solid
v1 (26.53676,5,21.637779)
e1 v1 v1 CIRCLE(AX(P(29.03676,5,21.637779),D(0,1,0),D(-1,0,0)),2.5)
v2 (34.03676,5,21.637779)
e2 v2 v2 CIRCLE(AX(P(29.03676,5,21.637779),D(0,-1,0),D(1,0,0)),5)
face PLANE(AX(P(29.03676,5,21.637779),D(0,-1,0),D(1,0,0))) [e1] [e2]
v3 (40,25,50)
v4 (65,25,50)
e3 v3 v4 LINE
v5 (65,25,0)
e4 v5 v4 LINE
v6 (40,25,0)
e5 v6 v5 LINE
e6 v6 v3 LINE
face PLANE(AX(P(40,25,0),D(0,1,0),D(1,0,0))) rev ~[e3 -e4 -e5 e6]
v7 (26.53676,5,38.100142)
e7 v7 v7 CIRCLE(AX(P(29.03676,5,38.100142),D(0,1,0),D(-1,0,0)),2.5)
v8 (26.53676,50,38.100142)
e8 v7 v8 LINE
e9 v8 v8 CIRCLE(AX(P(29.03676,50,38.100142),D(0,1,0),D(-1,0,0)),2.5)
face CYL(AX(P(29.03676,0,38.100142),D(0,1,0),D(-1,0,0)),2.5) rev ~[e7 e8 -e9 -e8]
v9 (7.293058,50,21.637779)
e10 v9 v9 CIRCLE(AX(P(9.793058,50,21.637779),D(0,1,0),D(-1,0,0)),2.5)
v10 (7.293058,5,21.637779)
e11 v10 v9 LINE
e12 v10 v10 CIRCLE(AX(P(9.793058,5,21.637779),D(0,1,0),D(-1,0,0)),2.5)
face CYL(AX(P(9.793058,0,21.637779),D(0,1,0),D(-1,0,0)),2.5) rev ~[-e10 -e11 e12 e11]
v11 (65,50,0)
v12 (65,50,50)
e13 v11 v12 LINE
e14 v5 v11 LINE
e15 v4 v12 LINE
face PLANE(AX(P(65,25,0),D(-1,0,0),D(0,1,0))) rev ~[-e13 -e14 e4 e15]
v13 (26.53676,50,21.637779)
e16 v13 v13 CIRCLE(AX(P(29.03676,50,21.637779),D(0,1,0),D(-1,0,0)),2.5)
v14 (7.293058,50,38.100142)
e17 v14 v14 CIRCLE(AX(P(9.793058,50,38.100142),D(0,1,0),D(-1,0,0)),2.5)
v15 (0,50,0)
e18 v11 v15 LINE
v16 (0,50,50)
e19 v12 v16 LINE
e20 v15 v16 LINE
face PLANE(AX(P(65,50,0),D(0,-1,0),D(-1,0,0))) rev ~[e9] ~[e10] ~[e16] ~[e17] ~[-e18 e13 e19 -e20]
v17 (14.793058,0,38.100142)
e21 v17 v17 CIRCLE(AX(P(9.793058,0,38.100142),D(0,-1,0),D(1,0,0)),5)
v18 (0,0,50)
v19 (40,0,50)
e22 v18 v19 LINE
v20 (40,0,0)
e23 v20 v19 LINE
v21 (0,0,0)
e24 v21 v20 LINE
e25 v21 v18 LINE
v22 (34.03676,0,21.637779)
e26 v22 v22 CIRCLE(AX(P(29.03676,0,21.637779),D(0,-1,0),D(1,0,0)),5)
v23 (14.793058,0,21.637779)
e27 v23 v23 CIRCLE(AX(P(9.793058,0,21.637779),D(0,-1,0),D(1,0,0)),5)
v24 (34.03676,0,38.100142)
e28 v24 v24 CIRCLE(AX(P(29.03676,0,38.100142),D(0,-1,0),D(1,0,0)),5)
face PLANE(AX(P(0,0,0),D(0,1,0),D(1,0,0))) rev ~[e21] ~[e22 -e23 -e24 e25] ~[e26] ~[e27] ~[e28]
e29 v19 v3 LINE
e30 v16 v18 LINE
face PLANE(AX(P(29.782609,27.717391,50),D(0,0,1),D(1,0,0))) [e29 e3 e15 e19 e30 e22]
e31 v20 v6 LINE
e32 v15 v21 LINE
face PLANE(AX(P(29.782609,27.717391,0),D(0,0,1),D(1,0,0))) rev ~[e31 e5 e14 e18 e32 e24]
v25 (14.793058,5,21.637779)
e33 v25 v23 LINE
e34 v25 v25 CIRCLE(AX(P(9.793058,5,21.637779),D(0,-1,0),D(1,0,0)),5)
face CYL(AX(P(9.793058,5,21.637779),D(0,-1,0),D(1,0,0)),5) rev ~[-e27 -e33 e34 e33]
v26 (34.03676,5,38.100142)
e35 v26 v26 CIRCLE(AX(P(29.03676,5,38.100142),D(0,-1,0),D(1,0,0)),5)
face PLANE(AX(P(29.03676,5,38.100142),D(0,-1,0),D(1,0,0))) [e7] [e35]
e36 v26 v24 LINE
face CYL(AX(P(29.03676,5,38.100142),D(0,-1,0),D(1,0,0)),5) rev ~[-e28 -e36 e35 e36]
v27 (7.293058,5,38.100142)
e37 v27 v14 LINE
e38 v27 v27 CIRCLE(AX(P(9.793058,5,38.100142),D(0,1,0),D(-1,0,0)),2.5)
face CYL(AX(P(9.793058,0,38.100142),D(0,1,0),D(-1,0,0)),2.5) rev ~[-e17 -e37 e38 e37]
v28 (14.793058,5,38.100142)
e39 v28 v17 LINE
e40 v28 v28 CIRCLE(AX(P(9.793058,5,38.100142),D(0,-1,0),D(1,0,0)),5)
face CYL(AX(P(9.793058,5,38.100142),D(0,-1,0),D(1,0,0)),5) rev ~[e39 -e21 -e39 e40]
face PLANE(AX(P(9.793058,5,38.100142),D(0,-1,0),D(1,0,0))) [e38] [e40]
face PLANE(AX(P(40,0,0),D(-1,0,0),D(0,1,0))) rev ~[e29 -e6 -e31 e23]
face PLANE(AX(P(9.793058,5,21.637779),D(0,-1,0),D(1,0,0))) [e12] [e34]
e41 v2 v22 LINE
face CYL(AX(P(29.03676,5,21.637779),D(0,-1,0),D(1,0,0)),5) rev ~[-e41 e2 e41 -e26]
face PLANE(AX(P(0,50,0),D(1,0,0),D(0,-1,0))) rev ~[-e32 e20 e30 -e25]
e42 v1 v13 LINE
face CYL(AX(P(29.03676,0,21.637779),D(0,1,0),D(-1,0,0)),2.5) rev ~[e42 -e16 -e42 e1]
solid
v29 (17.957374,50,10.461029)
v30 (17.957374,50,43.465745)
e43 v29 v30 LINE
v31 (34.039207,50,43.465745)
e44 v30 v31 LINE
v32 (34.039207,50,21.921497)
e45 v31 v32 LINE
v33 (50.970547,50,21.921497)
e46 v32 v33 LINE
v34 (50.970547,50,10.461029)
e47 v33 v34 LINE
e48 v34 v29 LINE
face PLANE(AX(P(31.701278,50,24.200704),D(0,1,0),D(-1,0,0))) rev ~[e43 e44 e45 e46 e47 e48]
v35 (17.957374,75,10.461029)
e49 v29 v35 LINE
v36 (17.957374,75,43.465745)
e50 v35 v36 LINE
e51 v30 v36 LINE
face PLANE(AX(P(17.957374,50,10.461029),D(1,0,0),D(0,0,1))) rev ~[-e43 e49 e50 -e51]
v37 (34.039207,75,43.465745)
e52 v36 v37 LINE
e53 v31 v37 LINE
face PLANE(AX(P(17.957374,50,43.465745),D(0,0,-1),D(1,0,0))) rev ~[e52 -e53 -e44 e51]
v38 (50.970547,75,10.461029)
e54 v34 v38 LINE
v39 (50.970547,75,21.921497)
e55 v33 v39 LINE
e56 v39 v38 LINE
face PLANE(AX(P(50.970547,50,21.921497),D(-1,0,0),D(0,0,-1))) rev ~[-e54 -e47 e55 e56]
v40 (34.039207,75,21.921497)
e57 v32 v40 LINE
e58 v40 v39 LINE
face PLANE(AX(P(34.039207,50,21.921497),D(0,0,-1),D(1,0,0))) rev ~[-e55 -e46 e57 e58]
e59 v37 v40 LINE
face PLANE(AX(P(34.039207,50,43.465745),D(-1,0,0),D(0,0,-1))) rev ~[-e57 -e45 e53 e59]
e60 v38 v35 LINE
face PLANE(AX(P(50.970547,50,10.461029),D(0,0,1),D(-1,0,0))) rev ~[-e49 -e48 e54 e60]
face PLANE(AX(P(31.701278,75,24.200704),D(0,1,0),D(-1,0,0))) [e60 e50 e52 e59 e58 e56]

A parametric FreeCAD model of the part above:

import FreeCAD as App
import Part
import Sketcher

V = App.Vector


def add_polygon(sketch, points):
    """Adds a closed chain of lines whose ends are joined by coincident constraints."""
    first, n = sketch.GeometryCount, len(points)
    for a, b in zip(points, points[1:] + points[:1]):
        sketch.addGeometry(Part.LineSegment(App.Vector(*a, 0), App.Vector(*b, 0)), False)
    for i in range(n):
        sketch.addConstraint(Sketcher.Constraint("Coincident", first + i, 2, first + (i + 1) % n, 1))

doc = App.newDocument("Part")
body = doc.addObject("PartDesign::Body", "Body")

sketch1 = body.newObject("Sketcher::SketchObject", "Sketch")
sketch1.AttachmentSupport = (doc.getObject("XY_Plane"), [""])
sketch1.MapMode = "FlatFace"
add_polygon(sketch1, [(0, 50), (0, 0), (40, 0), (40, 25), (65, 25), (65, 50)])
sketch1.addConstraint(Sketcher.Constraint("Vertical", 0))
sketch1.addConstraint(Sketcher.Constraint("Horizontal", 1))
sketch1.addConstraint(Sketcher.Constraint("Vertical", 2))
sketch1.addConstraint(Sketcher.Constraint("Horizontal", 3))
sketch1.addConstraint(Sketcher.Constraint("Vertical", 4))
sketch1.addConstraint(Sketcher.Constraint("Horizontal", 5))
sketch1.addConstraint(Sketcher.Constraint("Coincident", 0, 2, -1, 1))
sketch1.addConstraint(Sketcher.Constraint("Equal", 3, 2))
sketch1.addConstraint(Sketcher.Constraint("Equal", 2, 4))
sketch1.addConstraint(Sketcher.Constraint("DistanceX", 1, 1, 1, 2, 40.0))
sketch1.addConstraint(Sketcher.Constraint("DistanceX", 3, 1, 3, 2, 25.0))
pad1 = body.newObject("PartDesign::Pad", "Pad")
pad1.Profile = sketch1
pad1.Length = 50

sketch2 = body.newObject("Sketcher::SketchObject", "Sketch001")
sketch2.AttachmentSupport = (doc.getObject("XZ_Plane"), [""])
sketch2.MapMode = "FlatFace"
sketch2.addGeometry(Part.Circle(V(9.8, 21.6, 0), V(0, 0, 1), 2.5), False)
sketch2.addGeometry(Part.Circle(V(29, 21.6, 0), V(0, 0, 1), 2.5), False)
sketch2.addGeometry(Part.Circle(V(29, 38.1, 0), V(0, 0, 1), 2.5), False)
sketch2.addGeometry(Part.Circle(V(9.8, 38.1, 0), V(0, 0, 1), 2.5), False)
sketch2.addConstraint(Sketcher.Constraint("Equal", 0, 1))
sketch2.addConstraint(Sketcher.Constraint("Equal", 1, 2))
sketch2.addConstraint(Sketcher.Constraint("Equal", 2, 3))
sketch2.addConstraint(Sketcher.Constraint("Horizontal", 0, 3, 1, 3))
sketch2.addConstraint(Sketcher.Constraint("Horizontal", 2, 3, 3, 3))
sketch2.addConstraint(Sketcher.Constraint("Vertical", 1, 3, 2, 3))
sketch2.addConstraint(Sketcher.Constraint("Vertical", 0, 3, 3, 3))
sketch2.addConstraint(Sketcher.Constraint("Diameter", 0, 5.0))
sketch2.addConstraint(Sketcher.Constraint("DistanceX", -1, 1, 0, 3, 9.793058))
sketch2.addConstraint(Sketcher.Constraint("DistanceY", -1, 1, 0, 3, 21.637779))
sketch2.addConstraint(Sketcher.Constraint("DistanceX", -1, 1, 1, 3, 29.03676))
sketch2.addConstraint(Sketcher.Constraint("DistanceY", -1, 1, 2, 3, 38.100142))
doc.recompute()
hole = body.newObject("PartDesign::Hole", "Hole")
hole.Profile = sketch2
hole.ThreadType = "None"
hole.Diameter = 5
hole.DepthType = "ThroughAll"
hole.HoleCutType = "Counterbore"
hole.HoleCutDiameter = 10
hole.HoleCutDepth = 5
body2 = doc.addObject("PartDesign::Body", "Body001")

sketch3 = body2.newObject("Sketcher::SketchObject", "Sketch002")
sketch3.AttachmentSupport = (doc.getObject("XZ_Plane001"), [""])
sketch3.MapMode = "FlatFace"
sketch3.AttachmentOffset = App.Placement(V(0, 0, -50), App.Rotation())
add_polygon(sketch3, [(51, 10), (18, 10), (18, 43), (34, 43), (34, 22), (51, 22)])
sketch3.addConstraint(Sketcher.Constraint("Horizontal", 0))
sketch3.addConstraint(Sketcher.Constraint("Vertical", 1))
sketch3.addConstraint(Sketcher.Constraint("Horizontal", 2))
sketch3.addConstraint(Sketcher.Constraint("Vertical", 3))
sketch3.addConstraint(Sketcher.Constraint("Horizontal", 4))
sketch3.addConstraint(Sketcher.Constraint("Vertical", 5))
sketch3.addConstraint(Sketcher.Constraint("DistanceX", 4, 1, 4, 2, 16.93134))
sketch3.addConstraint(Sketcher.Constraint("DistanceY", 5, 2, 5, 1, 11.460468))
sketch3.addConstraint(Sketcher.Constraint("DistanceX", 0, 2, 0, 1, 33.013172))
sketch3.addConstraint(Sketcher.Constraint("DistanceY", 1, 1, 1, 2, 33.004716))
sketch3.addConstraint(Sketcher.Constraint("DistanceY", -1, 1, 0, 2, 10.461029))
sketch3.addConstraint(Sketcher.Constraint("DistanceX", -1, 1, 0, 2, 17.957374))
pad2 = body2.newObject("PartDesign::Pad", "Pad001")
pad2.Profile = sketch3
pad2.Length = 25
pad2.Reversed = True

doc.recompute()
